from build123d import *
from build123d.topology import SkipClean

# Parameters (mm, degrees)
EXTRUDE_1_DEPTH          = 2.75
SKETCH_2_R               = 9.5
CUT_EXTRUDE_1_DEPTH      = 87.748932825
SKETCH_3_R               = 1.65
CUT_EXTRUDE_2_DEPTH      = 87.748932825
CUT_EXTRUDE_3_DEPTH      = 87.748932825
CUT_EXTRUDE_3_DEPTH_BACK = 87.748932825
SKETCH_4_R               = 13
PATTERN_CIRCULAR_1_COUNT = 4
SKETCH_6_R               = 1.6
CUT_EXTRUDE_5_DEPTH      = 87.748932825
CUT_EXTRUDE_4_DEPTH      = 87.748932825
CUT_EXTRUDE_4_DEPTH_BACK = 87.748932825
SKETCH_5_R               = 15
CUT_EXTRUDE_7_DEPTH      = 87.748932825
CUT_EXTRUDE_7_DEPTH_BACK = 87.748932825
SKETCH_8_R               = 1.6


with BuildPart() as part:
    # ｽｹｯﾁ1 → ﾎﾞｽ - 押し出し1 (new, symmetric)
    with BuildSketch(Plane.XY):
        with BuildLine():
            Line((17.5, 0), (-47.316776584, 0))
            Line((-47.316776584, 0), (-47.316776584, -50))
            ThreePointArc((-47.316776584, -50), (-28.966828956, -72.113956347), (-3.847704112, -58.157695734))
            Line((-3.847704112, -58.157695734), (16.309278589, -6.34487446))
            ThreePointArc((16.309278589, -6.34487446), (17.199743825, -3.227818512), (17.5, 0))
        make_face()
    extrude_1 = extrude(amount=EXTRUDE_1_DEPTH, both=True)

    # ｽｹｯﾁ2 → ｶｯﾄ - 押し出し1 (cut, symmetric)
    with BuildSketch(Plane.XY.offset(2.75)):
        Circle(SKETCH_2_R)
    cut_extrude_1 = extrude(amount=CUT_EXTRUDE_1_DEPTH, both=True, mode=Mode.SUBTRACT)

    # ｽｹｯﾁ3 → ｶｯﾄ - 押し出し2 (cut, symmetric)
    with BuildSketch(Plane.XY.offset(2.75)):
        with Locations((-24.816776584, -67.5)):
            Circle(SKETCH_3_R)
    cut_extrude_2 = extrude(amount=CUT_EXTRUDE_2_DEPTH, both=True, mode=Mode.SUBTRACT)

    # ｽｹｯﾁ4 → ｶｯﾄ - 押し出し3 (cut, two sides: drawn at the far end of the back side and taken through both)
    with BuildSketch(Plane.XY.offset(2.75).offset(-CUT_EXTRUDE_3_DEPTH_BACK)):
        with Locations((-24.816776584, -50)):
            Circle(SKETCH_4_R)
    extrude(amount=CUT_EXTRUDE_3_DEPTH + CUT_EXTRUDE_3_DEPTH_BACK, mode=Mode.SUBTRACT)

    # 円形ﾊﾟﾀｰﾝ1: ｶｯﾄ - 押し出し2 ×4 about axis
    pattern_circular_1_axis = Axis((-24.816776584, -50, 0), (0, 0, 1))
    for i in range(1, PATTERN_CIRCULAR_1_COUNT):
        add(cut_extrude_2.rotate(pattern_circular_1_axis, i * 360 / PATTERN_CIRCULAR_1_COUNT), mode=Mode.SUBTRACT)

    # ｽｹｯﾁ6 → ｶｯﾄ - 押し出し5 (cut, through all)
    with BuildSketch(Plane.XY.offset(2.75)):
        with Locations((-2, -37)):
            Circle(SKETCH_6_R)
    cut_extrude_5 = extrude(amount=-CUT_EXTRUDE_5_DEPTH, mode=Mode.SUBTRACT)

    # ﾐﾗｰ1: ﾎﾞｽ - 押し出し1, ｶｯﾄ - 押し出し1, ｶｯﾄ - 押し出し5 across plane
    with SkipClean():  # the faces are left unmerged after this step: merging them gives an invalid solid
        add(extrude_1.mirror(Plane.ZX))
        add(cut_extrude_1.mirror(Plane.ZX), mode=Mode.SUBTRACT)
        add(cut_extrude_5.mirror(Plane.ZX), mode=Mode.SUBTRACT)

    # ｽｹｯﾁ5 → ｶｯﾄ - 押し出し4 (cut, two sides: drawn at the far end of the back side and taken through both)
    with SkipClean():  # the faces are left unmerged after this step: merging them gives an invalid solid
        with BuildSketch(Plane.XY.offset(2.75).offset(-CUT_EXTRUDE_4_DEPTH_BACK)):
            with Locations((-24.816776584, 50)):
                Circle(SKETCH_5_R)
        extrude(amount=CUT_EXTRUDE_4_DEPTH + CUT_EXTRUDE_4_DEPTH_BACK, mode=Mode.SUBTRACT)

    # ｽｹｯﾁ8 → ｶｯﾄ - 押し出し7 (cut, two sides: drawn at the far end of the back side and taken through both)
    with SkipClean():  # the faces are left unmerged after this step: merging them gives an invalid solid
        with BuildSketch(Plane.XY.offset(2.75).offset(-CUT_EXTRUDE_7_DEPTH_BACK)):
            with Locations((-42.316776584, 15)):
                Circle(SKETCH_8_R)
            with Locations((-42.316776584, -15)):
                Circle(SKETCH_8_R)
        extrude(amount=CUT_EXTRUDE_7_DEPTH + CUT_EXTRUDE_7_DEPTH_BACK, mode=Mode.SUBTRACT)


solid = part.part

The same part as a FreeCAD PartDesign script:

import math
import FreeCAD as App
import Part
import Sketcher

V = App.Vector
Q = App.Units.Quantity

doc = App.newDocument("Part")
params = doc.addObject("Spreadsheet::Sheet", "Params")
for row, (alias, value) in enumerate([
    ("sketch1_radius", "22.5 mm"),
    ("sketch1_radius2", "17.5 mm"),
    ("sketch1_height", "50 mm"),
    ("pad1_length", "5.5 mm"),
    ("sketch2_diameter", "19 mm"),
    ("pocket1_length", "175.497866 mm"),
    ("sketch3_diameter", "3.3 mm"),
    ("pocket2_length", "175.497866 mm"),
    ("sketch4_diameter", "26 mm"),
    ("sketch5_diameter", "3.2 mm"),
    ("sketch6_diameter", "30 mm"),
    ("sketch7_diameter", "3.2 mm"),
], start=1):
    params.set(f"A{row}", alias)
    params.set(f"B{row}", "=" + value)
    params.setAlias(f"B{row}", alias)

body = doc.addObject("PartDesign::Body", "Body")

sketch1 = body.newObject("Sketcher::SketchObject", "Sketch")
sketch1.AttachmentSupport = (doc.getObject("XY_Plane"), [""])
sketch1.MapMode = "FlatFace"
sketch1.addGeometry([
    Part.LineSegment(V(17.5, 0, 0), V(-47.316777, 0, 0)),
    Part.LineSegment(V(-47.316777, 0, 0), V(-47.316777, -50, 0)),
    Part.ArcOfCircle(Part.Circle(V(-24.816777, -50, 0), V(0, 0, 1), 22.5), math.radians(180), math.radians(338.742241)),
    Part.LineSegment(V(-3.847704, -58.157696, 0), V(16.309279, -6.344874, 0)),
    Part.ArcOfCircle(Part.Circle(V(0, 0, 0), V(0, 0, 1), 17.5), math.radians(-21.257759), math.radians(0)),
], False)
sketch1.addConstraint([
    Sketcher.Constraint("Coincident", 0, 2, 1, 1),
    Sketcher.Constraint("Tangent", 1, 2, 2, 1),
    Sketcher.Constraint("Tangent", 2, 2, 3, 1),
    Sketcher.Constraint("Tangent", 3, 2, 4, 1),
    Sketcher.Constraint("Coincident", 4, 2, 0, 1),
    Sketcher.Constraint("Horizontal", 0),
    Sketcher.Constraint("Vertical", 1),
    Sketcher.Constraint("Coincident", 4, 3, -1, 1),
    Sketcher.Constraint("PointOnObject", 0, 2, -1),
    Sketcher.Constraint("Radius", 2, Q("22.5 mm")),
    Sketcher.Constraint("Radius", 4, Q("17.5 mm")),
    Sketcher.Constraint("DistanceY", 1, 2, 1, 1, Q("50 mm")),
    Sketcher.Constraint("DistanceX", 0, 2, 0, 1, Q("64.816777 mm")),
])
sketch1.setExpression("Constraints[9]", "Params.sketch1_radius")
sketch1.setExpression("Constraints[10]", "Params.sketch1_radius2")
sketch1.setExpression("Constraints[11]", "Params.sketch1_height")
pad1 = body.newObject("PartDesign::Pad", "Pad")
pad1.Profile = sketch1
pad1.setExpression("Length", "Params.pad1_length")
pad1.Midplane = True

sketch2 = body.newObject("Sketcher::SketchObject", "Sketch001")
sketch2.AttachmentSupport = (doc.getObject("XY_Plane"), [""])
sketch2.MapMode = "FlatFace"
sketch2.AttachmentOffset = App.Placement(V(0, 0, 2.75), App.Rotation())
sketch2.addGeometry(Part.Circle(V(0, 0, 0), V(0, 0, 1), 9.5), False)
sketch2.addConstraint([
    Sketcher.Constraint("Coincident", 0, 3, -1, 1),
    Sketcher.Constraint("Diameter", 0, Q("19 mm")),
])
sketch2.setExpression("Constraints[1]", "Params.sketch2_diameter")
pocket1 = body.newObject("PartDesign::Pocket", "Pocket")
pocket1.Profile = sketch2
pocket1.setExpression("Length", "Params.pocket1_length")
pocket1.Midplane = True

sketch3 = body.newObject("Sketcher::SketchObject", "Sketch002")
sketch3.AttachmentSupport = (doc.getObject("XY_Plane"), [""])
sketch3.MapMode = "FlatFace"
sketch3.AttachmentOffset = App.Placement(V(0, 0, 2.75), App.Rotation())
sketch3.addGeometry(Part.Circle(V(-24.816777, -67.5, 0), V(0, 0, 1), 1.65), False)
sketch3.addConstraint([
    Sketcher.Constraint("Diameter", 0, Q("3.3 mm")),
    Sketcher.Constraint("DistanceY", 0, 3, -1, 1, Q("67.5 mm")),
    Sketcher.Constraint("DistanceX", 0, 3, -1, 1, Q("24.816777 mm")),
])
sketch3.setExpression("Constraints[0]", "Params.sketch3_diameter")
pocket2 = body.newObject("PartDesign::Pocket", "Pocket001")
pocket2.Profile = sketch3
pocket2.setExpression("Length", "Params.pocket2_length")
pocket2.Midplane = True

sketch4 = body.newObject("Sketcher::SketchObject", "Sketch003")
sketch4.AttachmentSupport = (doc.getObject("XY_Plane"), [""])
sketch4.MapMode = "FlatFace"
sketch4.AttachmentOffset = App.Placement(V(0, 0, 2.75), App.Rotation())
sketch4.addGeometry(Part.Circle(V(-24.816777, -50, 0), V(0, 0, 1), 13), False)
sketch4.addConstraint([
    Sketcher.Constraint("Diameter", 0, Q("26 mm")),
    Sketcher.Constraint("DistanceY", 0, 3, -1, 1, Q("50 mm")),
    Sketcher.Constraint("DistanceX", 0, 3, -1, 1, Q("24.816777 mm")),
])
sketch4.setExpression("Constraints[0]", "Params.sketch4_diameter")
pocket3 = body.newObject("PartDesign::Pocket", "Pocket002")
pocket3.Profile = sketch4
pocket3.Type = "ThroughAll"
pocket3.Midplane = True
doc.recompute()

datumline = body.newObject("PartDesign::Line", "DatumLine")
datumline.Placement = App.Placement(V(-24.816777, -50, 0), App.Rotation(V(0, 0, 1), V(0, 0, 1)))
polarpattern = body.newObject("PartDesign::PolarPattern", "PolarPattern")
polarpattern.Originals = [pocket2]
polarpattern.Axis = (datumline, [""])
polarpattern.Angle = 360
polarpattern.Occurrences = 4
body.Tip = polarpattern

sketch5 = body.newObject("Sketcher::SketchObject", "Sketch004")
sketch5.AttachmentSupport = (doc.getObject("XY_Plane"), [""])
sketch5.MapMode = "FlatFace"
sketch5.AttachmentOffset = App.Placement(V(0, 0, 2.75), App.Rotation())
sketch5.addGeometry(Part.Circle(V(-2, -37, 0), V(0, 0, 1), 1.6), False)
sketch5.addConstraint([
    Sketcher.Constraint("Diameter", 0, Q("3.2 mm")),
    Sketcher.Constraint("DistanceX", 0, 3, -1, 1, Q("2 mm")),
    Sketcher.Constraint("DistanceY", 0, 3, -1, 1, Q("37 mm")),
])
sketch5.setExpression("Constraints[0]", "Params.sketch5_diameter")
pocket4 = body.newObject("PartDesign::Pocket", "Pocket003")
pocket4.Profile = sketch5
pocket4.Type = "ThroughAll"
doc.recompute()

mirrored = body.newObject("PartDesign::Mirrored", "Mirrored")
mirrored.Originals = [pad1, pocket1, pocket4]
mirrored.MirrorPlane = (doc.getObject("XZ_Plane"), [""])
body.Tip = mirrored

sketch6 = body.newObject("Sketcher::SketchObject", "Sketch005")
sketch6.AttachmentSupport = (doc.getObject("XY_Plane"), [""])
sketch6.MapMode = "FlatFace"
sketch6.AttachmentOffset = App.Placement(V(0, 0, 2.75), App.Rotation())
sketch6.addGeometry(Part.Circle(V(-24.816777, 50, 0), V(0, 0, 1), 15), False)
sketch6.addConstraint([
    Sketcher.Constraint("Diameter", 0, Q("30 mm")),
    Sketcher.Constraint("DistanceY", -1, 1, 0, 3, Q("50 mm")),
    Sketcher.Constraint("DistanceX", 0, 3, -1, 1, Q("24.816777 mm")),
])
sketch6.setExpression("Constraints[0]", "Params.sketch6_diameter")
pocket5 = body.newObject("PartDesign::Pocket", "Pocket004")
pocket5.Profile = sketch6
pocket5.Type = "ThroughAll"
pocket5.Midplane = True

sketch7 = body.newObject("Sketcher::SketchObject", "Sketch006")
sketch7.AttachmentSupport = (doc.getObject("XY_Plane"), [""])
sketch7.MapMode = "FlatFace"
sketch7.AttachmentOffset = App.Placement(V(0, 0, 2.75), App.Rotation())
sketch7.addGeometry([
    Part.Circle(V(-42.316777, 15, 0), V(0, 0, 1), 1.6),
    Part.Circle(V(-42.316777, -15, 0), V(0, 0, 1), 1.6),
], False)
sketch7.addConstraint([
    Sketcher.Constraint("Equal", 0, 1),
    Sketcher.Constraint("Symmetric", 0, 3, 1, 3, -1),
    Sketcher.Constraint("Diameter", 0, Q("3.2 mm")),
    Sketcher.Constraint("DistanceY", -1, 1, 0, 3, Q("15 mm")),
    Sketcher.Constraint("DistanceX", 0, 3, -1, 1, Q("42.316777 mm")),
])
sketch7.setExpression("Constraints[2]", "Params.sketch7_diameter")
pocket6 = body.newObject("PartDesign::Pocket", "Pocket005")
pocket6.Profile = sketch7
pocket6.Type = "ThroughAll"
pocket6.Midplane = True

doc.recompute()
